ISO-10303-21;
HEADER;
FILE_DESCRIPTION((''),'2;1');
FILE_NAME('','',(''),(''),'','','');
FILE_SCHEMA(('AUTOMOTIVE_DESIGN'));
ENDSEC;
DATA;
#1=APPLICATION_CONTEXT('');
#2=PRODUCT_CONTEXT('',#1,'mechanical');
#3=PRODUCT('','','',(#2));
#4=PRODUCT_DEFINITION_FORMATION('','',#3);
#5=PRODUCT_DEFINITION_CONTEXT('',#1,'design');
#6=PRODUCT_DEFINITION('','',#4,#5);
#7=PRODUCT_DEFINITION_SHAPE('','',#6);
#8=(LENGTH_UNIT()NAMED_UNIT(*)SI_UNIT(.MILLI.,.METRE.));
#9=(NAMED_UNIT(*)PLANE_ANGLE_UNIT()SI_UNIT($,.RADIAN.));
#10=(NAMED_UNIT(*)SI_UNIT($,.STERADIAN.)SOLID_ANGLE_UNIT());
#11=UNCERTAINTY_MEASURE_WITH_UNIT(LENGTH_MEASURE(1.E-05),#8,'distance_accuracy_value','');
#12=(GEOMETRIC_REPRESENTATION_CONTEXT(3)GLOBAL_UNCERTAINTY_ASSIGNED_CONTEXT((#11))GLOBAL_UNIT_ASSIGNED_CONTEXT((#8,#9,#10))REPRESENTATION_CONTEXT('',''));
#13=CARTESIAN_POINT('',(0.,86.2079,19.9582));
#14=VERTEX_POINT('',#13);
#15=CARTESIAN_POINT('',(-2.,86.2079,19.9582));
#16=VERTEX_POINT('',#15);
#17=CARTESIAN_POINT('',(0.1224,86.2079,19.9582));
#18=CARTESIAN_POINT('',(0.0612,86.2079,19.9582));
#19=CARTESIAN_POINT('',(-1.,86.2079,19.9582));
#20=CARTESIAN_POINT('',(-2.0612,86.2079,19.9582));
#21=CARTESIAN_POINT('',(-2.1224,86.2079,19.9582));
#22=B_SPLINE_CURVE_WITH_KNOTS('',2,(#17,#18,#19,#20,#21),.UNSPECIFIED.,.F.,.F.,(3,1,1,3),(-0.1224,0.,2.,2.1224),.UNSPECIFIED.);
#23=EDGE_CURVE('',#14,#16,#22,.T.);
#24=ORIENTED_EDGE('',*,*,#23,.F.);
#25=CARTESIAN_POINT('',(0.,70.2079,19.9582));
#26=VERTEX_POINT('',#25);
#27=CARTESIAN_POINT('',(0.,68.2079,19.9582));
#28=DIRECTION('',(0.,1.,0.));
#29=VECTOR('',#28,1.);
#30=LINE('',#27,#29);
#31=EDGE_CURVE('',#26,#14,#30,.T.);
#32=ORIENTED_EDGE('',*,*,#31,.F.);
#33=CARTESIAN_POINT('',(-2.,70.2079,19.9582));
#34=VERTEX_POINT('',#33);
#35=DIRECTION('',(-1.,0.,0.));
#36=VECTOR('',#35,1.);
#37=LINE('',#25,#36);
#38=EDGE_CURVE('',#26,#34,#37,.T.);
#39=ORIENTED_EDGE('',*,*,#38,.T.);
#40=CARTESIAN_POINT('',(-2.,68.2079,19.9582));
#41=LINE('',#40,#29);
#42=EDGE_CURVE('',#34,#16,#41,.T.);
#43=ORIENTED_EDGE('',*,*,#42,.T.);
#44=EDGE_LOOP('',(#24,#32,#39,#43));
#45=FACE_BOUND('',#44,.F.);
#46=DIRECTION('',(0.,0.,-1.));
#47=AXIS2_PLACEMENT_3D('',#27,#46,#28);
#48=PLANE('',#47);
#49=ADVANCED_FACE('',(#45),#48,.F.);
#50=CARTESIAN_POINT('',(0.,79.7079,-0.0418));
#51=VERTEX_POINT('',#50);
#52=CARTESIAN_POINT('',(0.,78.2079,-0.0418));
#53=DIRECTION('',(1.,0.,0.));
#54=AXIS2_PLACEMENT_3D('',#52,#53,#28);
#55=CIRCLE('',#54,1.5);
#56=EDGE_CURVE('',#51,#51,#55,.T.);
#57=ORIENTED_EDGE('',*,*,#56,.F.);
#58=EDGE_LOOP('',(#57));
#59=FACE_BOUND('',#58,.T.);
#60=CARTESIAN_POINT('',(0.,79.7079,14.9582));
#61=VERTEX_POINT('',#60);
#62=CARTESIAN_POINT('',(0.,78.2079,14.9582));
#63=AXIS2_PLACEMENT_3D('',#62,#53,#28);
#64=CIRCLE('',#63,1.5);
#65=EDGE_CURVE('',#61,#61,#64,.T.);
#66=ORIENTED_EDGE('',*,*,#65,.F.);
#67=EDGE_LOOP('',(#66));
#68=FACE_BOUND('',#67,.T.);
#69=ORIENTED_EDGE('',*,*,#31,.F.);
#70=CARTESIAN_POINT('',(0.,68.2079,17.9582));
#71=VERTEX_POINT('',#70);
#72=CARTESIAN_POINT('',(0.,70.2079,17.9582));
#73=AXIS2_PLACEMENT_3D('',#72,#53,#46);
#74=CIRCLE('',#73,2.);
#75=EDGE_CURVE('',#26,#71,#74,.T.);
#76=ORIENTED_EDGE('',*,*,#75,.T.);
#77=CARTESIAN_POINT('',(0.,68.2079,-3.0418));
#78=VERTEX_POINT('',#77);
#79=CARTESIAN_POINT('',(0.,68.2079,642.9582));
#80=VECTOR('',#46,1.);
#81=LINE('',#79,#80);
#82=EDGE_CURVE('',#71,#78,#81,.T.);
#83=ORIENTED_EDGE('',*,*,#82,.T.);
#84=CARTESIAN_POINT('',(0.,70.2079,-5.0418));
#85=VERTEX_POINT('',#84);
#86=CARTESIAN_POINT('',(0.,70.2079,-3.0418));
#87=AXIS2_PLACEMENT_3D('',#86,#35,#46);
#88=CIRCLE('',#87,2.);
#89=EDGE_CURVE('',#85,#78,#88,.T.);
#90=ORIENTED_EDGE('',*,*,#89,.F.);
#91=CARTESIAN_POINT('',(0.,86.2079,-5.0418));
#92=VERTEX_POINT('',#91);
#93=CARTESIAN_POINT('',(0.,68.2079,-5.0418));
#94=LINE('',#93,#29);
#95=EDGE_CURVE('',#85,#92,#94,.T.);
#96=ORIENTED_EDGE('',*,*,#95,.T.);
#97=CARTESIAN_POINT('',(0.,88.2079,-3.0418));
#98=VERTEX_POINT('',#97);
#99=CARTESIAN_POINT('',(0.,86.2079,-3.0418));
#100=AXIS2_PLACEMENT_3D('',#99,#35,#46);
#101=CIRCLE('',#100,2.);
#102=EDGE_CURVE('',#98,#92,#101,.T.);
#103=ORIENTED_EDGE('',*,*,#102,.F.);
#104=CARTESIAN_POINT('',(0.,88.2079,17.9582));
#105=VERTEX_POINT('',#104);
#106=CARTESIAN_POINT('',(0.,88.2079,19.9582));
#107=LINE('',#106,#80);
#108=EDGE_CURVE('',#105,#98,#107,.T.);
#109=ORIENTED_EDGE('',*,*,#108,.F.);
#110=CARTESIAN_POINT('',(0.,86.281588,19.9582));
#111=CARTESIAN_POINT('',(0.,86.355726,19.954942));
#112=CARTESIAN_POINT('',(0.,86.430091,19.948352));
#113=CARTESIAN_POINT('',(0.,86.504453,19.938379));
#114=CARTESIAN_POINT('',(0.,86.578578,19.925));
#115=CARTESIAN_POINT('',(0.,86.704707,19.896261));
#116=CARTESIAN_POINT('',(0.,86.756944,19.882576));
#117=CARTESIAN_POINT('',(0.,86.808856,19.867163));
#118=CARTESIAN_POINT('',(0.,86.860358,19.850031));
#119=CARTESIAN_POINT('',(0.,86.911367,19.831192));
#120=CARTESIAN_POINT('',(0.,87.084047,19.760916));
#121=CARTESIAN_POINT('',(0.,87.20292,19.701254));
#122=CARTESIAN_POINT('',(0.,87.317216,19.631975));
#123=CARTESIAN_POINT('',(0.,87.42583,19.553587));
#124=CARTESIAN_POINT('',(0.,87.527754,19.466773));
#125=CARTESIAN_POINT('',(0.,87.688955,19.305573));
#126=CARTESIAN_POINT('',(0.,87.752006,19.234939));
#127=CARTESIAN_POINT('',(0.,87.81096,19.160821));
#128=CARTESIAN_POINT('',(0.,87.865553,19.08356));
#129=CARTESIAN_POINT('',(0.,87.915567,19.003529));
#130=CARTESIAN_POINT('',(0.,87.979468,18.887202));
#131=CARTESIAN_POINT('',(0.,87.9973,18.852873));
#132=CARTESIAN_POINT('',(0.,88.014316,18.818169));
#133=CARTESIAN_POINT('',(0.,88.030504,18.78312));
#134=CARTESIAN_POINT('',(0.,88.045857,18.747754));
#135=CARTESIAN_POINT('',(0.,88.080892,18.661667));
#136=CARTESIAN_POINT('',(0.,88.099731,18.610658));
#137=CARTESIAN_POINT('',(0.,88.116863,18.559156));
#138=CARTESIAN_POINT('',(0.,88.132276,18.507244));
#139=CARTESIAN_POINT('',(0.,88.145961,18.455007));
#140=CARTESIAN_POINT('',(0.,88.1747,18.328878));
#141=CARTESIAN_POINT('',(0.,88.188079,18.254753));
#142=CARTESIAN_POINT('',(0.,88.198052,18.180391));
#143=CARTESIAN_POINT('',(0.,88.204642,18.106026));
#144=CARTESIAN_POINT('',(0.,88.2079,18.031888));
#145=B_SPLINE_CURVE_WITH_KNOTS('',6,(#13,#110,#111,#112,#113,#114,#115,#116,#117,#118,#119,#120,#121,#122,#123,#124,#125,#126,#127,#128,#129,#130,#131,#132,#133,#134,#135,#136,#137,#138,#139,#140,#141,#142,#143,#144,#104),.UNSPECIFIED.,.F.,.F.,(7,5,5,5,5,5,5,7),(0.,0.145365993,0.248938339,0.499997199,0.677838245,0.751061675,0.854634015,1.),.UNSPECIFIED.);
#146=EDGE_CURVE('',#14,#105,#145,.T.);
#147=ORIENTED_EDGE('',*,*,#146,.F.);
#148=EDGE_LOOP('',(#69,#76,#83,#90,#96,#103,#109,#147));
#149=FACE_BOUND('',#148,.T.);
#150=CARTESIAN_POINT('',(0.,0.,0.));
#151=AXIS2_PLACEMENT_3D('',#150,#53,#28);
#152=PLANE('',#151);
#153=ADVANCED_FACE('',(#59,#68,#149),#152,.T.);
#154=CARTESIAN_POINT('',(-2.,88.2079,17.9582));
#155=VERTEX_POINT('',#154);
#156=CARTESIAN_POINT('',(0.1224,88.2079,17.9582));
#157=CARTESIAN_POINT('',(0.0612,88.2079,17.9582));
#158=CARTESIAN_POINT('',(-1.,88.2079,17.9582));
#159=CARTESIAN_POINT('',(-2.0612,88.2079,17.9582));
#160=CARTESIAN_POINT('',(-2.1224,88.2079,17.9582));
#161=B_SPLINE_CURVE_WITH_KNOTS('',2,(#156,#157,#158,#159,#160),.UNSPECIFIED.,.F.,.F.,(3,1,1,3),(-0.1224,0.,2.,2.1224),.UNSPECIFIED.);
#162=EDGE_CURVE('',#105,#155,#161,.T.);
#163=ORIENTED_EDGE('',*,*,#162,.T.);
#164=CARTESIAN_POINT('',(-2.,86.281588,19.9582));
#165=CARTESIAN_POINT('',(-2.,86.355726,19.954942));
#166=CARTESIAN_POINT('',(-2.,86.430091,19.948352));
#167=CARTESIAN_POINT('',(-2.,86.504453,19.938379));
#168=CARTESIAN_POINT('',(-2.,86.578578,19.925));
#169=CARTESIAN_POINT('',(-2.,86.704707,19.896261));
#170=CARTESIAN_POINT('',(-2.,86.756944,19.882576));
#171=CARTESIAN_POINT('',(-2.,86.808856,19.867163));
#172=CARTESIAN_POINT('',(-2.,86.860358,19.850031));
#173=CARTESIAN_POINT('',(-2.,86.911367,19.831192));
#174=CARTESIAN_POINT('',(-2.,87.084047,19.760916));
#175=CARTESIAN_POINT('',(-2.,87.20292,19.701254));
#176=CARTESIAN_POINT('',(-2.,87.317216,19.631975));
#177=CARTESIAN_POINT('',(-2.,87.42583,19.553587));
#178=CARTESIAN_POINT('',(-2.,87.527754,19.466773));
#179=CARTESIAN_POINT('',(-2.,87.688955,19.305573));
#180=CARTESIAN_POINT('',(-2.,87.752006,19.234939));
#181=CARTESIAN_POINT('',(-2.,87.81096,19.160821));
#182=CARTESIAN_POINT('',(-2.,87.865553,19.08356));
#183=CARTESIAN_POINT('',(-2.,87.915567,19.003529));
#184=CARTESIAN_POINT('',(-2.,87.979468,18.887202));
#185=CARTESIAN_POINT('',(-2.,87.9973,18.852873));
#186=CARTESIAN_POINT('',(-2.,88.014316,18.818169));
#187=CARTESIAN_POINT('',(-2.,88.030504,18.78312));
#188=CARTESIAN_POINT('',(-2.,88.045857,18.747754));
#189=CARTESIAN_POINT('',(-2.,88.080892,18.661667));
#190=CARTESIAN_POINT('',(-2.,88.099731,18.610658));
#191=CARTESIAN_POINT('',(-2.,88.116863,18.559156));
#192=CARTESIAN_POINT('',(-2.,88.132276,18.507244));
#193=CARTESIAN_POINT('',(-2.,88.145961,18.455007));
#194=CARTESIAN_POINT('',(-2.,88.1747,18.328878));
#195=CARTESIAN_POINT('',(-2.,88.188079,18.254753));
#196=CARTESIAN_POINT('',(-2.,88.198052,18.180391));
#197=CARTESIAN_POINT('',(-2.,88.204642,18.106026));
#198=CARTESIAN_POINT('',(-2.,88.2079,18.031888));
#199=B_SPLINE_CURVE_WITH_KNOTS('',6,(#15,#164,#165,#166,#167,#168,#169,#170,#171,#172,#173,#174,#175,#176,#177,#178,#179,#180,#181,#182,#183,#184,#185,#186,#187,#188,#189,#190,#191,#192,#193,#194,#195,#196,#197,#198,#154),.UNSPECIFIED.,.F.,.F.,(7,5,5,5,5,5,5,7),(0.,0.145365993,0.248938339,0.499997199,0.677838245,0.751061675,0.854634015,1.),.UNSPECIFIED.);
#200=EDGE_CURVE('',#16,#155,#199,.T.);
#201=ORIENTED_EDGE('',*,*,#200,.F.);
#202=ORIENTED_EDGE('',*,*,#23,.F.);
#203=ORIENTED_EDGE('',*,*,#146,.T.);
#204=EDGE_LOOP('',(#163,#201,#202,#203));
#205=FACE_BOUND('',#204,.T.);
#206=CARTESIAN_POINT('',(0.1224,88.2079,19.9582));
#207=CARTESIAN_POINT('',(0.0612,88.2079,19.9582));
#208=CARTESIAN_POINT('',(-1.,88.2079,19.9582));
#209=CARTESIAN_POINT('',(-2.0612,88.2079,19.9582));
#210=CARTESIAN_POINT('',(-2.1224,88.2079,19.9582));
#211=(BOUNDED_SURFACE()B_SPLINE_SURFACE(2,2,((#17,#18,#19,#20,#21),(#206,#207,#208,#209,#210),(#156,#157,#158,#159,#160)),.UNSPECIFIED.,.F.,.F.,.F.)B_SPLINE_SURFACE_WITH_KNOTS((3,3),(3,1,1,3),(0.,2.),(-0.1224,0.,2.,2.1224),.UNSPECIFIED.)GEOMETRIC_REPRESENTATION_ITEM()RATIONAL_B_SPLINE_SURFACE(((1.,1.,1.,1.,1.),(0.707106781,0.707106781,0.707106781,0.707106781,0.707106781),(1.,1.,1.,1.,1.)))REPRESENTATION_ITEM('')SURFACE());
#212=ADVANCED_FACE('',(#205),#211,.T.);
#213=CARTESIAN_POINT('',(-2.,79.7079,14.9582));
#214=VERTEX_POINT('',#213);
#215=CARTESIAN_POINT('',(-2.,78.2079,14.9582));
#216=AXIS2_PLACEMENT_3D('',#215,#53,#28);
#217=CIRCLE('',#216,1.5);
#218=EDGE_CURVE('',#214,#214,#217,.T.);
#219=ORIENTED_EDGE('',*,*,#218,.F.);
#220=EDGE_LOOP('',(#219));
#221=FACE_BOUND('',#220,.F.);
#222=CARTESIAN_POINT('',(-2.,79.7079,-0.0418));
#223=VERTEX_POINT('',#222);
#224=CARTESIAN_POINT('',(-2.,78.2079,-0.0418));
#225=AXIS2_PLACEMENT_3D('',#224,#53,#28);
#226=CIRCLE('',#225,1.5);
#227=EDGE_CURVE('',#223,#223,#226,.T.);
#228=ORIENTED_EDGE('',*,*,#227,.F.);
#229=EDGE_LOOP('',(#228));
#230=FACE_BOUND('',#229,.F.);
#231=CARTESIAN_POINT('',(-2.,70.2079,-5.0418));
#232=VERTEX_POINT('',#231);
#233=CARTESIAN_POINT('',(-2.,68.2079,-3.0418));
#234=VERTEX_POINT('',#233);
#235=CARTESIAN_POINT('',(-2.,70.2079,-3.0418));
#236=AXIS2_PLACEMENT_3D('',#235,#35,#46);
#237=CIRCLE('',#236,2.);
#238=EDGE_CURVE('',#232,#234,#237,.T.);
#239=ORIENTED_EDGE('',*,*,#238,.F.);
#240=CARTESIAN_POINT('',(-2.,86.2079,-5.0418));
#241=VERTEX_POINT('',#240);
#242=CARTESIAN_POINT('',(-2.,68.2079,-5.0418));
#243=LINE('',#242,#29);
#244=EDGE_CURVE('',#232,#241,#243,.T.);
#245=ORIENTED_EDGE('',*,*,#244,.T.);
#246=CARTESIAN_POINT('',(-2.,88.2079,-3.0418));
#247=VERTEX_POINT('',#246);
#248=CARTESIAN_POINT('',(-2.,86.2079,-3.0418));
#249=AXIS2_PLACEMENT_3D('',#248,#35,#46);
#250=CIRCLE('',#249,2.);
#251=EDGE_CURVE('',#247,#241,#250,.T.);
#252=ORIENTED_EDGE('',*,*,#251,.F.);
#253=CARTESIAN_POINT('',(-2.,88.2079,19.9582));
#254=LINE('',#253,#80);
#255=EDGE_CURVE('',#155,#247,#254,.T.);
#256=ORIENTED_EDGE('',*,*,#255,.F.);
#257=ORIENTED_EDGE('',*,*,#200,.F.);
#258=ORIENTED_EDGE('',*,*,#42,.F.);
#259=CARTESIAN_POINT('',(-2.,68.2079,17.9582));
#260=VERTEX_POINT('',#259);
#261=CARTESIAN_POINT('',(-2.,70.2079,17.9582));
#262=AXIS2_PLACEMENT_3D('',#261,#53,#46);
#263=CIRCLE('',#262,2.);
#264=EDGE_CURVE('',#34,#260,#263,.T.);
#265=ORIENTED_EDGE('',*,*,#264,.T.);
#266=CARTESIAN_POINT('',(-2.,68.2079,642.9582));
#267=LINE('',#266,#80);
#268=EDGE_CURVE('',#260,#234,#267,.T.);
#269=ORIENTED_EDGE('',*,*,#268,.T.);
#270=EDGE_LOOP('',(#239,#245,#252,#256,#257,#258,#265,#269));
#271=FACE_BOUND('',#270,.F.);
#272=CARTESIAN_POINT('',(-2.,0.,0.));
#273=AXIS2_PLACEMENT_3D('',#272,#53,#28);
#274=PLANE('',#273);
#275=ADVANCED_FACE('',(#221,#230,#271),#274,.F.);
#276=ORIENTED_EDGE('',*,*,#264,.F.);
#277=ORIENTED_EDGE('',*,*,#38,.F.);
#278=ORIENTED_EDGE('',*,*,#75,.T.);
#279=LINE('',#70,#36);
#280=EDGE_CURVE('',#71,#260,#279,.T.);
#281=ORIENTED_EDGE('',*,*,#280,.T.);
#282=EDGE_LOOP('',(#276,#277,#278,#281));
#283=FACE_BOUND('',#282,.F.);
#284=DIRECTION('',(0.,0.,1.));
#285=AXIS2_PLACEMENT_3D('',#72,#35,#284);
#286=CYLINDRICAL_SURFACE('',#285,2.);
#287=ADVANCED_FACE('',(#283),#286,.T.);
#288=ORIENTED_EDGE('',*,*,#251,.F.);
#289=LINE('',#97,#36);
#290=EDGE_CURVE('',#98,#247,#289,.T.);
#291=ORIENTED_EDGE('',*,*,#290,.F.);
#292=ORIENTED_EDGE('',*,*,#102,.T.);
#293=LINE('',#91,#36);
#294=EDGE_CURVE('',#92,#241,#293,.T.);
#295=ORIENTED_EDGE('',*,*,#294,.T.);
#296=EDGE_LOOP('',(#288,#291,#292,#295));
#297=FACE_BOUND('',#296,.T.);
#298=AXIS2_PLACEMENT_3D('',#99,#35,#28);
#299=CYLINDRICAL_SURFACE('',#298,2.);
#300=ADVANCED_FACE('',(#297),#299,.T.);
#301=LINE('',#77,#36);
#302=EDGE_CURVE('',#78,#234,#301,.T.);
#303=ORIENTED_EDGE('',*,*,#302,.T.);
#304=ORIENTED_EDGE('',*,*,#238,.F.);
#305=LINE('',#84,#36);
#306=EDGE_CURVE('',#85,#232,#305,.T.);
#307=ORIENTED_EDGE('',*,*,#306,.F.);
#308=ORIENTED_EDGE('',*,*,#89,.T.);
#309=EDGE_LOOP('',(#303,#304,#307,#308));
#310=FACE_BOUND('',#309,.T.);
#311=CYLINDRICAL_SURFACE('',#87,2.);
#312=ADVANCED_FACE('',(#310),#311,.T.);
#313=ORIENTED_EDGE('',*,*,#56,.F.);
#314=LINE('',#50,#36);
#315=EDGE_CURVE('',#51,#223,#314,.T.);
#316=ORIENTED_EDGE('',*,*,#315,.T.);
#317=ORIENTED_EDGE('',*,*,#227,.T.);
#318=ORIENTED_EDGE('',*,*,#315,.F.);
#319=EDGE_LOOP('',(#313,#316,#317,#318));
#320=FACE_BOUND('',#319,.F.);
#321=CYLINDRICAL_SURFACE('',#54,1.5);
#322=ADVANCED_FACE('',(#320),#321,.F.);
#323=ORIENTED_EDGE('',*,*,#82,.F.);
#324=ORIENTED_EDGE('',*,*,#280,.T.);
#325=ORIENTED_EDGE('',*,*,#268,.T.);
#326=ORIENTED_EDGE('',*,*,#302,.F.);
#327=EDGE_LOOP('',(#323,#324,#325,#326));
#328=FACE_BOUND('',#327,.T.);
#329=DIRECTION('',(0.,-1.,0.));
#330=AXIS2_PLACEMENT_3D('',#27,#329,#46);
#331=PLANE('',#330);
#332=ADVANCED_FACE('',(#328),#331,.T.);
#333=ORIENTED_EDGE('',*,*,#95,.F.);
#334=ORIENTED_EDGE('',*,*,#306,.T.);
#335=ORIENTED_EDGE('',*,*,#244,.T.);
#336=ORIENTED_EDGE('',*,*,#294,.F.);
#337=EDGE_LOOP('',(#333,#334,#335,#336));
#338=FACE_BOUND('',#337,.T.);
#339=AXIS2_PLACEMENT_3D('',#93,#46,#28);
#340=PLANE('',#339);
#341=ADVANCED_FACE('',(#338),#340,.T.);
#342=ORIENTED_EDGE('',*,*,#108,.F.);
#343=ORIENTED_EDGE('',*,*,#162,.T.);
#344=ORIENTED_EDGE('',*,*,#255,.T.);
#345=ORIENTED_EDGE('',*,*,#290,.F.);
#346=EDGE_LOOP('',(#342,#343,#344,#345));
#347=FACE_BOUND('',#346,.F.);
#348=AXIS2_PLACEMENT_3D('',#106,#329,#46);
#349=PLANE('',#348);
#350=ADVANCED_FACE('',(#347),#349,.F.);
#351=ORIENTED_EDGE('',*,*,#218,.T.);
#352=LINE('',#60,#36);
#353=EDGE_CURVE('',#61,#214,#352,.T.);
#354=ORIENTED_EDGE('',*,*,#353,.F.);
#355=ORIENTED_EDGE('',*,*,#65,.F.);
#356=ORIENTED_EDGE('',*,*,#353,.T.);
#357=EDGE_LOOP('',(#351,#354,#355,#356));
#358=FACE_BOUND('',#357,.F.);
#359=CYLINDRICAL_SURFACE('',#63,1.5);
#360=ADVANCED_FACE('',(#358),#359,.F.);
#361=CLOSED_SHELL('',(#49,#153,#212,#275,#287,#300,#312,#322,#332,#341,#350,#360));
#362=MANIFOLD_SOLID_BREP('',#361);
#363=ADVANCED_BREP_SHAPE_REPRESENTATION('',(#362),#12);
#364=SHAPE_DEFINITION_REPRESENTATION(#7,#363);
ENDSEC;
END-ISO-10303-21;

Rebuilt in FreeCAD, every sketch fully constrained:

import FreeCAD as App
import Part
import Sketcher
Q = App.Units.Quantity


def edges_at(feature, points):
    """Names of the edges that pass closest to the given points."""
    edges = feature.Shape.Edges
    near = lambda p: min(range(len(edges)), key=lambda i: edges[i].distToShape(Part.Vertex(*p))[0])
    return sorted({f"Edge{near(p) + 1}" for p in points})


def add_polygon(sketch, points):
    """Adds a closed chain of lines whose ends are joined by coincident constraints."""
    first, n = sketch.GeometryCount, len(points)
    for a, b in zip(points, points[1:] + points[:1]):
        sketch.addGeometry(Part.LineSegment(App.Vector(*a, 0), App.Vector(*b, 0)), False)
    for i in range(n):
        sketch.addConstraint(Sketcher.Constraint("Coincident", first + i, 2, first + (i + 1) % n, 1))

doc = App.newDocument("Part")
body = doc.addObject("PartDesign::Body", "Body")

# Sketch on YZ plane
sketch1 = body.newObject("Sketcher::SketchObject", "Sketch")
sketch1.AttachmentSupport = (doc.getObject("YZ_Plane"), [""])
sketch1.MapMode = "FlatFace"
add_polygon(sketch1, [(88.2079, 19.9582), (68.2079, 19.9582), (68.2079, -5.0418), (88.2079, -5.0418)])  # lines 0-3
sketch1.addGeometry(Part.Circle(App.Vector(78.2079, -0.0418, 0), App.Vector(0, 0, 1), 1.5), False)  # 4
sketch1.addGeometry(Part.Circle(App.Vector(78.2079, 14.9582, 0), App.Vector(0, 0, 1), 1.5), False)  # 5
sketch1.addConstraint(Sketcher.Constraint("Horizontal", 0))
sketch1.addConstraint(Sketcher.Constraint("Vertical", 1))
sketch1.addConstraint(Sketcher.Constraint("Horizontal", 2))
sketch1.addConstraint(Sketcher.Constraint("Vertical", 3))
sketch1.addConstraint(Sketcher.Constraint("Equal", 4, 5))
sketch1.addConstraint(Sketcher.Constraint("Vertical", 4, 3, 5, 3))
sketch1.addConstraint(Sketcher.Constraint("Diameter", 4, Q("3 mm")))
sketch1.addConstraint(Sketcher.Constraint("DistanceY", 4, 3, 5, 3, Q("15 mm")))
sketch1.addConstraint(Sketcher.Constraint("DistanceX", 0, 2, 5, 3, Q("10 mm")))
sketch1.addConstraint(Sketcher.Constraint("DistanceY", 5, 3, 0, 2, Q("5 mm")))
sketch1.addConstraint(Sketcher.Constraint("DistanceY", 1, 2, 4, 3, Q("5 mm")))
sketch1.addConstraint(Sketcher.Constraint("DistanceX", 4, 3, 2, 2, Q("10 mm")))
sketch1.addConstraint(Sketcher.Constraint("DistanceX", -1, 1, 4, 3, Q("78.208 mm")))
sketch1.addConstraint(Sketcher.Constraint("DistanceY", 4, 3, -1, 1, Q("0.0418 mm")))
pad1 = body.newObject("PartDesign::Pad", "Pad")
pad1.Profile = sketch1
pad1.Length = 2
pad1.Reversed = True
doc.recompute()

fillet = body.newObject("PartDesign::Fillet", "Fillet")
fillet.Base = (pad1, edges_at(pad1, [
    (-1, 88.208, 19.958),
    (-1, 68.208, 19.958),
    (-1, 88.208, -5.042),
    (-1, 68.208, -5.042),
]))
fillet.Radius = 2

doc.recompute()
